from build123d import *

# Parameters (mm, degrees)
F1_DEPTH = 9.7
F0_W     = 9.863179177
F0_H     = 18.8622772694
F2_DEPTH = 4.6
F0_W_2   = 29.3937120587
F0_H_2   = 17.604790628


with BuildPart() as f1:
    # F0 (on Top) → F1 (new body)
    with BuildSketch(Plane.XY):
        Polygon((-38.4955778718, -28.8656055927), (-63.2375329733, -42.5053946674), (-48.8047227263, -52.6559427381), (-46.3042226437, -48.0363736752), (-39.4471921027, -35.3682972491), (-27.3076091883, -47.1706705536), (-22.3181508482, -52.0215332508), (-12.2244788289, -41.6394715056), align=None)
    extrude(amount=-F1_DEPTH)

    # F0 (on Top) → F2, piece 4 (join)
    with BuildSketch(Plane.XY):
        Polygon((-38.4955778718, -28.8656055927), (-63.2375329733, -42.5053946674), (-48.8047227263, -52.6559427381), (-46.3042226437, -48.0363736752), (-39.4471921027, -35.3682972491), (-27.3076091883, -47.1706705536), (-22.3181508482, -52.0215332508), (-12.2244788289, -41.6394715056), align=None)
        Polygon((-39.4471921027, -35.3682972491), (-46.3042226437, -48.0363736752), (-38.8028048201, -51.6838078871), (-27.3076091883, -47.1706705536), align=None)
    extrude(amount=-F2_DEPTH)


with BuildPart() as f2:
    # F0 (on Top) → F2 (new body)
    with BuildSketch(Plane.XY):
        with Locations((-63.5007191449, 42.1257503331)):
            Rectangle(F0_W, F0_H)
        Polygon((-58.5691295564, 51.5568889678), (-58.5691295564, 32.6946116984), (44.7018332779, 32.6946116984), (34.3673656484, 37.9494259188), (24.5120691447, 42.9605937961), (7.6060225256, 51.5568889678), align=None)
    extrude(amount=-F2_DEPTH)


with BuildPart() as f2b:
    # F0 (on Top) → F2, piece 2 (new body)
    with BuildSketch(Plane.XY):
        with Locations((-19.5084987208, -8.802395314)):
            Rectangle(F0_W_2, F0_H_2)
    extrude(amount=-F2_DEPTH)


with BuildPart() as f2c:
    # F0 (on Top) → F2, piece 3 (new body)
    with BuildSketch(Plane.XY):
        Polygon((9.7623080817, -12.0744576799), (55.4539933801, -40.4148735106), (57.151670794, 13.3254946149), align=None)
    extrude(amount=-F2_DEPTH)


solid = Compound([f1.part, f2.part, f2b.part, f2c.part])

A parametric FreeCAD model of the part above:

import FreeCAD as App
import Part
import Sketcher
from FreeCAD import Vector


def add_polygon(sketch, points):
    """Adds a closed chain of lines whose ends are joined by coincident constraints."""
    first, n = sketch.GeometryCount, len(points)
    for a, b in zip(points, points[1:] + points[:1]):
        sketch.addGeometry(Part.LineSegment(App.Vector(*a, 0), App.Vector(*b, 0)), False)
    for i in range(n):
        sketch.addConstraint(Sketcher.Constraint("Coincident", first + i, 2, first + (i + 1) % n, 1))

doc = App.newDocument("Part")
body = doc.addObject("PartDesign::Body", "Body")

sketch1 = body.newObject("Sketcher::SketchObject", "Sketch")
sketch1.AttachmentSupport = (doc.getObject("XY_Plane"), [""])
sketch1.MapMode = "FlatFace"
add_polygon(sketch1, [(-38, -29), (-63, -43), (-49, -53), (-46, -48), (-39, -35), (-27, -47), (-22, -52), (-12, -42)])
sketch1.addConstraint([
    Sketcher.Constraint("Parallel", 2, 3),
    Sketcher.Constraint("Parallel", 4, 5),
    Sketcher.Constraint("Perpendicular", 5, 6),
    Sketcher.Constraint("Distance", 4, 16.931199),
    Sketcher.Constraint("DistanceX", 1, 2, 2, 2, 2.5005),
    Sketcher.Constraint("DistanceY", 4, 2, 6, 2, 5.531199),
    Sketcher.Constraint("Distance", 0, 28.252578),
    Sketcher.Constraint("Distance", 1, 17.644819),
    Sketcher.Constraint("DistanceX", 4, 2, -1, 1, 27.307609),
    Sketcher.Constraint("DistanceY", 4, 2, -1, 1, 47.170671),
    Sketcher.Constraint("DistanceX", 5, 2, -1, 1, 22.318151),
    Sketcher.Constraint("DistanceX", 6, 2, -1, 1, 12.224479),
    Sketcher.Constraint("DistanceX", 0, 2, 1, 2, 14.43281),
    Sketcher.Constraint("DistanceY", 1, 2, 2, 2, 4.619569),
    Sketcher.Constraint("DistanceX", 2, 2, 3, 2, 6.857031),
    Sketcher.Constraint("DistanceY", 3, 2, 7, 2, 6.502692),
])
pad1 = body.newObject("PartDesign::Pad", "Pad")
pad1.Profile = sketch1
pad1.Length = 9.7
pad1.Reversed = True

sketch2 = body.newObject("Sketcher::SketchObject", "Sketch001")
sketch2.AttachmentSupport = (doc.getObject("XY_Plane"), [""])
sketch2.MapMode = "FlatFace"
add_polygon(sketch2, [(-38, -29), (-63, -43), (-49, -53), (-46, -48), (-39, -52), (-27, -47), (-22, -52), (-12, -42)])
sketch2.addConstraint([
    Sketcher.Constraint("Perpendicular", 5, 6),
    Sketcher.Constraint("Parallel", 3, 7),
    Sketcher.Constraint("DistanceX", 1, 2, 2, 2, 2.5005),
    Sketcher.Constraint("DistanceY", 4, 2, 6, 2, 5.531199),
    Sketcher.Constraint("Distance", 0, 28.252578),
    Sketcher.Constraint("Distance", 1, 17.644819),
    Sketcher.Constraint("Distance", 4, 12.34941),
    Sketcher.Constraint("DistanceX", 4, 2, -1, 1, 27.307609),
    Sketcher.Constraint("DistanceY", 4, 2, -1, 1, 47.170671),
    Sketcher.Constraint("DistanceX", 5, 2, -1, 1, 22.318151),
    Sketcher.Constraint("DistanceX", 6, 2, -1, 1, 12.224479),
    Sketcher.Constraint("DistanceX", 0, 2, 1, 2, 14.43281),
    Sketcher.Constraint("DistanceY", 1, 2, 2, 2, 4.619569),
    Sketcher.Constraint("DistanceX", 0, 2, 3, 2, 24.434728),
    Sketcher.Constraint("DistanceX", 2, 2, 5, 2, 23.986072),
    Sketcher.Constraint("DistanceY", 5, 2, 2, 2, 3.98516),
])
pad2 = body.newObject("PartDesign::Pad", "Pad001")
pad2.Profile = sketch2
pad2.Length = 4.6
pad2.Reversed = True
body2 = doc.addObject("PartDesign::Body", "Body001")

sketch3 = body2.newObject("Sketcher::SketchObject", "Sketch002")
sketch3.AttachmentSupport = (doc.getObject("XY_Plane001"), [""])
sketch3.MapMode = "FlatFace"
add_polygon(sketch3, [(-68, 52), (-68, 33), (45, 33), (25, 43), (8, 52)])
sketch3.addConstraint([
    Sketcher.Constraint("Vertical", 0),
    Sketcher.Constraint("Horizontal", 1),
    Sketcher.Constraint("Horizontal", 4),
    Sketcher.Constraint("Parallel", 2, 3),
    Sketcher.Constraint("DistanceX", 4, 2, 4, 1, 76.038331),
    Sketcher.Constraint("Distance", 3, 18.966041),
    Sketcher.Constraint("DistanceX", 1, 1, 1, 2, 113.134142),
    Sketcher.Constraint("DistanceY", 0, 2, 0, 1, 18.862277),
    Sketcher.Constraint("DistanceX", 0, 2, -1, 1, 68.432309),
    Sketcher.Constraint("DistanceY", -1, 1, 0, 2, 32.694612),
])
pad3 = body2.newObject("PartDesign::Pad", "Pad002")
pad3.Profile = sketch3
pad3.Length = 4.6
pad3.Reversed = True
body3 = doc.addObject("PartDesign::Body", "Body002")

sketch4 = body3.newObject("Sketcher::SketchObject", "Sketch003")
sketch4.AttachmentSupport = (doc.getObject("XY_Plane002"), [""])
sketch4.MapMode = "FlatFace"
add_polygon(sketch4, [(-34, 0), (-34, -18), (-5, -18), (-5, 0)])
sketch4.addConstraint([
    Sketcher.Constraint("Vertical", 0),
    Sketcher.Constraint("Horizontal", 1),
    Sketcher.Constraint("Vertical", 2),
    Sketcher.Constraint("Horizontal", 3),
    Sketcher.Constraint("PointOnObject", 2, 2, -1),
    Sketcher.Constraint("DistanceY", 0, 2, 0, 1, 17.604791),
    Sketcher.Constraint("DistanceX", 1, 1, 1, 2, 29.393712),
    Sketcher.Constraint("DistanceX", 0, 2, -1, 1, 34.205355),
])
pad4 = body3.newObject("PartDesign::Pad", "Pad003")
pad4.Profile = sketch4
pad4.Length = 4.6
pad4.Reversed = True
body4 = doc.addObject("PartDesign::Body", "Body003")

sketch5 = body4.newObject("Sketcher::SketchObject", "Sketch004")
sketch5.AttachmentSupport = (doc.getObject("XY_Plane003"), [""])
sketch5.MapMode = "FlatFace"
add_polygon(sketch5, [(10, -12), (55, -40), (57, 13)])
sketch5.addConstraint([
    Sketcher.Constraint("Equal", 0, 1),
    Sketcher.Constraint("Equal", 1, 2),
    Sketcher.Constraint("DistanceX", -1, 1, 1, 2, 57.151671),
    Sketcher.Constraint("DistanceX", -1, 1, 2, 2, 9.762308),
    Sketcher.Constraint("DistanceY", 0, 2, 1, 2, 53.740368),
    Sketcher.Constraint("DistanceY", 0, 2, -1, 1, 40.414874),
])
pad5 = body4.newObject("PartDesign::Pad", "Pad004")
pad5.Profile = sketch5
pad5.Length = 4.6
pad5.Reversed = True

doc.recompute()
